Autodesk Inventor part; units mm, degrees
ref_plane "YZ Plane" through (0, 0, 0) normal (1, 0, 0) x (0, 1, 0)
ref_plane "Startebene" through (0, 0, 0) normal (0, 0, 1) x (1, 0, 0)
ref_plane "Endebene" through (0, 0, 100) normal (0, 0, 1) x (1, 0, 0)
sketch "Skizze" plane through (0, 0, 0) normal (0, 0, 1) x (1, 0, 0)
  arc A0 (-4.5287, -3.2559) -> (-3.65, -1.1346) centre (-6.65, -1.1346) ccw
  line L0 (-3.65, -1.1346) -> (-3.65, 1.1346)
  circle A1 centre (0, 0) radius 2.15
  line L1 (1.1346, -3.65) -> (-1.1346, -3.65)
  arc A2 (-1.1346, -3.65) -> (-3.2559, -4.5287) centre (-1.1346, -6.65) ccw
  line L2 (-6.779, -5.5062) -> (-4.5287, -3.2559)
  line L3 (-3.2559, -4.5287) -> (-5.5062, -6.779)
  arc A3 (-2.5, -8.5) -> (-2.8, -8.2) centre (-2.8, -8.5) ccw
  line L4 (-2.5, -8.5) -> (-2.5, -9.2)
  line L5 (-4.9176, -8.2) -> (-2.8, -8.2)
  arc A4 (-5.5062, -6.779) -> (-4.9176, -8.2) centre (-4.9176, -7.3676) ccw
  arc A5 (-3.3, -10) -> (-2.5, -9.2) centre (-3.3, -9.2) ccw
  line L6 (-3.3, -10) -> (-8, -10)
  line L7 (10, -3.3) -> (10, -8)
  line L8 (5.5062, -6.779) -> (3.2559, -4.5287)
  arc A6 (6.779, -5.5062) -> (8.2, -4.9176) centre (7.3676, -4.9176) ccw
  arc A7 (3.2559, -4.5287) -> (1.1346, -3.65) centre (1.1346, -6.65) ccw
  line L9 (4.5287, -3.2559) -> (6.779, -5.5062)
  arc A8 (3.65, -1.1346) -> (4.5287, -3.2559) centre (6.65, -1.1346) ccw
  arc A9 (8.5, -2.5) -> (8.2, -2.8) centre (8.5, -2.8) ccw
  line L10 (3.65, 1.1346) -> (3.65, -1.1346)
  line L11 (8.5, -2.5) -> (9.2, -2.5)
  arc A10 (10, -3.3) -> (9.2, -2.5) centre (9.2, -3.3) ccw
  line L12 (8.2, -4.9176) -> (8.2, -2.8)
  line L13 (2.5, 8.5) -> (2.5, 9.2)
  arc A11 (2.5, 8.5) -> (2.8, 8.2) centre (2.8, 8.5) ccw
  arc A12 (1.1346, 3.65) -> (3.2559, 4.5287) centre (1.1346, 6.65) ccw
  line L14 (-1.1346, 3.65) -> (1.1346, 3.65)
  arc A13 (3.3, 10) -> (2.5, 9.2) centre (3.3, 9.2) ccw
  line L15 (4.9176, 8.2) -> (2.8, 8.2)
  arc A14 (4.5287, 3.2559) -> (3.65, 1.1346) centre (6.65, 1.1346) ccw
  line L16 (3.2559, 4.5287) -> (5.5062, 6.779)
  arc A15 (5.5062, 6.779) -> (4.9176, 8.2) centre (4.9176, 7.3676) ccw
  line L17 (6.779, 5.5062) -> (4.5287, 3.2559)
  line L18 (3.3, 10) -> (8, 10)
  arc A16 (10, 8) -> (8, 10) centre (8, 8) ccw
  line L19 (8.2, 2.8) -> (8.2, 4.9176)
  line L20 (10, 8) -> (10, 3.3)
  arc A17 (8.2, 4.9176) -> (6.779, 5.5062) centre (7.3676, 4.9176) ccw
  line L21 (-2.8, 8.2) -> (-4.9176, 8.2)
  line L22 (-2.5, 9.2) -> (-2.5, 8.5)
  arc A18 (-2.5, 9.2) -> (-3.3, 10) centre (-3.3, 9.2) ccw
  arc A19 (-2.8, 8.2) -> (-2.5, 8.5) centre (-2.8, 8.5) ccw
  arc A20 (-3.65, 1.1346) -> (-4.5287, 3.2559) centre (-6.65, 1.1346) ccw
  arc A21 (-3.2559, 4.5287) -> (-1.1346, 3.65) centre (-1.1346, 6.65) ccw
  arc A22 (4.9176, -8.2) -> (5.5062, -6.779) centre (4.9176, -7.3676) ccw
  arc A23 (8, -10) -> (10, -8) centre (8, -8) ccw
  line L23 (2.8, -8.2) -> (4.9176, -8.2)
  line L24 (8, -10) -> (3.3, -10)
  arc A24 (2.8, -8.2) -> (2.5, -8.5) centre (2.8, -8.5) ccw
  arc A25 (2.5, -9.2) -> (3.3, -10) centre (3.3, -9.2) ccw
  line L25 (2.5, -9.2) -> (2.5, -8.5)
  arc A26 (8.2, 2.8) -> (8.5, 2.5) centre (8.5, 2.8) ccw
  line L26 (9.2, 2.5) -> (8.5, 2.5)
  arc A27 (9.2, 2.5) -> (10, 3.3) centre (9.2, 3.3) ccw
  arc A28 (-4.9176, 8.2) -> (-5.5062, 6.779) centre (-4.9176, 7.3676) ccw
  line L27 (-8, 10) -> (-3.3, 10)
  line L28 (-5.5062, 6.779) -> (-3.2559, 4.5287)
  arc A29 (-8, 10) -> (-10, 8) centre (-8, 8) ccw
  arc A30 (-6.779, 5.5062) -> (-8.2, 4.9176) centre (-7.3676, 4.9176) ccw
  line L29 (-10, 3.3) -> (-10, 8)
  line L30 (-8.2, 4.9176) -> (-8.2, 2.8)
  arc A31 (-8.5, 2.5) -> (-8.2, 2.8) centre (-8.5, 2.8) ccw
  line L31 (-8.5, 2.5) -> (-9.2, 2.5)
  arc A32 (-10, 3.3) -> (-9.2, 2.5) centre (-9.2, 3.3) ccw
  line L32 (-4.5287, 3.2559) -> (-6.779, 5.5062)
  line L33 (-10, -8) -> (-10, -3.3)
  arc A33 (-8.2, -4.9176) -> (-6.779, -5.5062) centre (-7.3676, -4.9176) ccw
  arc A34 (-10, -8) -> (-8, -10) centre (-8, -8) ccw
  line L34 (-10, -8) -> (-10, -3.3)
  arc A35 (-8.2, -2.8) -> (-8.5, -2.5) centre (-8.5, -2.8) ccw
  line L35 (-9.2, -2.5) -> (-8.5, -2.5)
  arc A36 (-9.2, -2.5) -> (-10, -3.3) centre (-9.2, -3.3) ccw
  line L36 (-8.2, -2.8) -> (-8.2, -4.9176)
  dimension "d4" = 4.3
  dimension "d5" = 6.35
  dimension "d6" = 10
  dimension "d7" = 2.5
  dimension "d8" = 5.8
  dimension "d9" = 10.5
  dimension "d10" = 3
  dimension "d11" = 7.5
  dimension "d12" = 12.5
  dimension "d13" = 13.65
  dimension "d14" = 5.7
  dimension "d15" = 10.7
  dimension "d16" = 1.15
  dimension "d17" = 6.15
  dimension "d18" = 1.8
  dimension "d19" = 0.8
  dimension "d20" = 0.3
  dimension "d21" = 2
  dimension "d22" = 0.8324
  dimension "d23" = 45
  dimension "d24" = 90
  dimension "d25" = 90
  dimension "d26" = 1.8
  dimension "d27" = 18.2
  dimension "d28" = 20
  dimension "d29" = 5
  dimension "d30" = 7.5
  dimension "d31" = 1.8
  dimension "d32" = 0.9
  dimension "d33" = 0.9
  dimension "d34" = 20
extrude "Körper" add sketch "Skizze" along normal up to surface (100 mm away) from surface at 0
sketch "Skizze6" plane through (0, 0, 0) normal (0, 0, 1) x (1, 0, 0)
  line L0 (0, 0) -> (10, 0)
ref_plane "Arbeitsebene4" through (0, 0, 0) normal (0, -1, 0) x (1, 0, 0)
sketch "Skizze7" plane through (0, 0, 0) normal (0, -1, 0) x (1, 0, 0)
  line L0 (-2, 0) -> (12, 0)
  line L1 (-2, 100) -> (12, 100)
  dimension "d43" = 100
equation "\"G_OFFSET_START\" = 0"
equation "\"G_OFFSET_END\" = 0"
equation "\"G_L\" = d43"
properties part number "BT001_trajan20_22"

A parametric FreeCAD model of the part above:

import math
import FreeCAD as App
import Part
import Sketcher
from FreeCAD import Vector

doc = App.newDocument("Part")
params = doc.addObject("Spreadsheet::Sheet", "Params")
for row, (alias, value) in enumerate([
    ("sketch1_radius", "3 mm"),
    ("sketch1_radius2", "2 mm"),
    ("sketch1_diameter", "4.3 mm"),
    ("sketch1_radius3", "0.3 mm"),
    ("sketch1_radius4", "0.8 mm"),
    ("pad1_length", "100 mm"),
], start=1):
    params.set(f"A{row}", alias)
    params.set(f"B{row}", "=" + value)
    params.setAlias(f"B{row}", alias)

body = doc.addObject("PartDesign::Body", "Body")

sketch1 = body.newObject("Sketcher::SketchObject", "Sketch")
sketch1.AttachmentSupport = (doc.getObject("XY_Plane"), [""])
sketch1.MapMode = "FlatFace"
sketch1.addGeometry(Part.ArcOfCircle(Part.Circle(Vector(-6.65, -1.1346, 0), Vector(0, 0, 1), 2.999971), math.radians(-45), math.radians(0)), False)
sketch1.addGeometry(Part.LineSegment(Vector(-4.5287, -3.2559, 0), Vector(-6.779, -5.5062, 0)), False)
sketch1.addGeometry(Part.ArcOfCircle(Part.Circle(Vector(-7.3676, -4.9176, 0), Vector(0, 0, 1), 0.8324), math.radians(180), math.radians(315)), False)
sketch1.addGeometry(Part.LineSegment(Vector(-8.2, -4.9176, 0), Vector(-8.2, -2.8, 0)), False)
sketch1.addGeometry(Part.ArcOfCircle(Part.Circle(Vector(-8.5, -2.8, 0), Vector(0, 0, 1), 0.3), math.radians(0), math.radians(90)), False)
sketch1.addGeometry(Part.LineSegment(Vector(-8.5, -2.5, 0), Vector(-9.2, -2.5, 0)), False)
sketch1.addGeometry(Part.ArcOfCircle(Part.Circle(Vector(-9.2, -3.3, 0), Vector(0, 0, 1), 0.8), math.radians(90), math.radians(180)), False)
sketch1.addGeometry(Part.LineSegment(Vector(-10, -3.3, 0), Vector(-10, -8, 0)), False)
sketch1.addGeometry(Part.ArcOfCircle(Part.Circle(Vector(-8, -8, 0), Vector(0, 0, 1), 2), math.radians(180), math.radians(270)), False)
sketch1.addGeometry(Part.LineSegment(Vector(-8, -10, 0), Vector(-3.3, -10, 0)), False)
sketch1.addGeometry(Part.ArcOfCircle(Part.Circle(Vector(-3.3, -9.2, 0), Vector(0, 0, 1), 0.8), math.radians(-90), math.radians(0)), False)
sketch1.addGeometry(Part.LineSegment(Vector(-2.5, -9.2, 0), Vector(-2.5, -8.5, 0)), False)
sketch1.addGeometry(Part.ArcOfCircle(Part.Circle(Vector(-2.8, -8.5, 0), Vector(0, 0, 1), 0.3), math.radians(0), math.radians(90)), False)
sketch1.addGeometry(Part.LineSegment(Vector(-2.8, -8.2, 0), Vector(-4.9176, -8.2, 0)), False)
sketch1.addGeometry(Part.ArcOfCircle(Part.Circle(Vector(-4.9176, -7.3676, 0), Vector(0, 0, 1), 0.832406), math.radians(135), math.radians(270)), False)
sketch1.addGeometry(Part.LineSegment(Vector(-5.5062, -6.779, 0), Vector(-3.2559, -4.5287, 0)), False)
sketch1.addGeometry(Part.ArcOfCircle(Part.Circle(Vector(-1.1346, -6.65, 0), Vector(0, 0, 1), 3), math.radians(90), math.radians(135)), False)
sketch1.addGeometry(Part.LineSegment(Vector(-1.1346, -3.65, 0), Vector(1.1346, -3.65, 0)), False)
sketch1.addGeometry(Part.ArcOfCircle(Part.Circle(Vector(1.1346, -6.65, 0), Vector(0, 0, 1), 2.999971), math.radians(45), math.radians(90)), False)
sketch1.addGeometry(Part.LineSegment(Vector(3.2559, -4.5287, 0), Vector(5.5062, -6.779, 0)), False)
sketch1.addGeometry(Part.ArcOfCircle(Part.Circle(Vector(4.9176, -7.3676, 0), Vector(0, 0, 1), 0.8324), math.radians(-90), math.radians(45)), False)
sketch1.addGeometry(Part.LineSegment(Vector(4.9176, -8.2, 0), Vector(2.8, -8.2, 0)), False)
sketch1.addGeometry(Part.ArcOfCircle(Part.Circle(Vector(2.8, -8.5, 0), Vector(0, 0, 1), 0.3), math.radians(90), math.radians(180)), False)
sketch1.addGeometry(Part.LineSegment(Vector(2.5, -8.5, 0), Vector(2.5, -9.2, 0)), False)
sketch1.addGeometry(Part.ArcOfCircle(Part.Circle(Vector(3.3, -9.2, 0), Vector(0, 0, 1), 0.8), math.radians(180), math.radians(270)), False)
sketch1.addGeometry(Part.LineSegment(Vector(3.3, -10, 0), Vector(8, -10, 0)), False)
sketch1.addGeometry(Part.ArcOfCircle(Part.Circle(Vector(8, -8, 0), Vector(0, 0, 1), 2), math.radians(-90), math.radians(0)), False)
sketch1.addGeometry(Part.LineSegment(Vector(10, -8, 0), Vector(10, -3.3, 0)), False)
sketch1.addGeometry(Part.ArcOfCircle(Part.Circle(Vector(9.2, -3.3, 0), Vector(0, 0, 1), 0.8), math.radians(0), math.radians(90)), False)
sketch1.addGeometry(Part.LineSegment(Vector(9.2, -2.5, 0), Vector(8.5, -2.5, 0)), False)
sketch1.addGeometry(Part.ArcOfCircle(Part.Circle(Vector(8.5, -2.8, 0), Vector(0, 0, 1), 0.3), math.radians(90), math.radians(180)), False)
sketch1.addGeometry(Part.LineSegment(Vector(8.2, -2.8, 0), Vector(8.2, -4.9176, 0)), False)
sketch1.addGeometry(Part.ArcOfCircle(Part.Circle(Vector(7.3676, -4.9176, 0), Vector(0, 0, 1), 0.832406), math.radians(-135), math.radians(0)), False)
sketch1.addGeometry(Part.LineSegment(Vector(6.779, -5.5062, 0), Vector(4.5287, -3.2559, 0)), False)
sketch1.addGeometry(Part.ArcOfCircle(Part.Circle(Vector(6.65, -1.1346, 0), Vector(0, 0, 1), 3), math.radians(180), math.radians(225)), False)
sketch1.addGeometry(Part.LineSegment(Vector(3.65, -1.1346, 0), Vector(3.65, 1.1346, 0)), False)
sketch1.addGeometry(Part.ArcOfCircle(Part.Circle(Vector(6.65, 1.1346, 0), Vector(0, 0, 1), 2.999971), math.radians(135), math.radians(180)), False)
sketch1.addGeometry(Part.LineSegment(Vector(4.5287, 3.2559, 0), Vector(6.779, 5.5062, 0)), False)
sketch1.addGeometry(Part.ArcOfCircle(Part.Circle(Vector(7.3676, 4.9176, 0), Vector(0, 0, 1), 0.8324), math.radians(0), math.radians(135)), False)
sketch1.addGeometry(Part.LineSegment(Vector(8.2, 4.9176, 0), Vector(8.2, 2.8, 0)), False)
sketch1.addGeometry(Part.ArcOfCircle(Part.Circle(Vector(8.5, 2.8, 0), Vector(0, 0, 1), 0.3), math.radians(180), math.radians(270)), False)
sketch1.addGeometry(Part.LineSegment(Vector(8.5, 2.5, 0), Vector(9.2, 2.5, 0)), False)
sketch1.addGeometry(Part.ArcOfCircle(Part.Circle(Vector(9.2, 3.3, 0), Vector(0, 0, 1), 0.8), math.radians(-90), math.radians(0)), False)
sketch1.addGeometry(Part.LineSegment(Vector(10, 3.3, 0), Vector(10, 8, 0)), False)
sketch1.addGeometry(Part.ArcOfCircle(Part.Circle(Vector(8, 8, 0), Vector(0, 0, 1), 2), math.radians(0), math.radians(90)), False)
sketch1.addGeometry(Part.LineSegment(Vector(8, 10, 0), Vector(3.3, 10, 0)), False)
sketch1.addGeometry(Part.ArcOfCircle(Part.Circle(Vector(3.3, 9.2, 0), Vector(0, 0, 1), 0.8), math.radians(90), math.radians(180)), False)
sketch1.addGeometry(Part.LineSegment(Vector(2.5, 9.2, 0), Vector(2.5, 8.5, 0)), False)
sketch1.addGeometry(Part.ArcOfCircle(Part.Circle(Vector(2.8, 8.5, 0), Vector(0, 0, 1), 0.3), math.radians(180), math.radians(270)), False)
sketch1.addGeometry(Part.LineSegment(Vector(2.8, 8.2, 0), Vector(4.9176, 8.2, 0)), False)
sketch1.addGeometry(Part.ArcOfCircle(Part.Circle(Vector(4.9176, 7.3676, 0), Vector(0, 0, 1), 0.832406), math.radians(-45), math.radians(90)), False)
sketch1.addGeometry(Part.LineSegment(Vector(5.5062, 6.779, 0), Vector(3.2559, 4.5287, 0)), False)
sketch1.addGeometry(Part.ArcOfCircle(Part.Circle(Vector(1.1346, 6.65, 0), Vector(0, 0, 1), 3), math.radians(-90), math.radians(-45)), False)
sketch1.addGeometry(Part.LineSegment(Vector(1.1346, 3.65, 0), Vector(-1.1346, 3.65, 0)), False)
sketch1.addGeometry(Part.ArcOfCircle(Part.Circle(Vector(-1.1346, 6.65, 0), Vector(0, 0, 1), 2.999971), math.radians(-135), math.radians(-90)), False)
sketch1.addGeometry(Part.LineSegment(Vector(-3.2559, 4.5287, 0), Vector(-5.5062, 6.779, 0)), False)
sketch1.addGeometry(Part.ArcOfCircle(Part.Circle(Vector(-4.9176, 7.3676, 0), Vector(0, 0, 1), 0.8324), math.radians(90), math.radians(225)), False)
sketch1.addGeometry(Part.LineSegment(Vector(-4.9176, 8.2, 0), Vector(-2.8, 8.2, 0)), False)
sketch1.addGeometry(Part.ArcOfCircle(Part.Circle(Vector(-2.8, 8.5, 0), Vector(0, 0, 1), 0.3), math.radians(-90), math.radians(0)), False)
sketch1.addGeometry(Part.LineSegment(Vector(-2.5, 8.5, 0), Vector(-2.5, 9.2, 0)), False)
sketch1.addGeometry(Part.ArcOfCircle(Part.Circle(Vector(-3.3, 9.2, 0), Vector(0, 0, 1), 0.8), math.radians(0), math.radians(90)), False)
sketch1.addGeometry(Part.LineSegment(Vector(-3.3, 10, 0), Vector(-8, 10, 0)), False)
sketch1.addGeometry(Part.ArcOfCircle(Part.Circle(Vector(-8, 8, 0), Vector(0, 0, 1), 2), math.radians(90), math.radians(180)), False)
sketch1.addGeometry(Part.LineSegment(Vector(-10, 8, 0), Vector(-10, 3.3, 0)), False)
sketch1.addGeometry(Part.ArcOfCircle(Part.Circle(Vector(-9.2, 3.3, 0), Vector(0, 0, 1), 0.8), math.radians(180), math.radians(270)), False)
sketch1.addGeometry(Part.LineSegment(Vector(-9.2, 2.5, 0), Vector(-8.5, 2.5, 0)), False)
sketch1.addGeometry(Part.ArcOfCircle(Part.Circle(Vector(-8.5, 2.8, 0), Vector(0, 0, 1), 0.3), math.radians(-90), math.radians(0)), False)
sketch1.addGeometry(Part.LineSegment(Vector(-8.2, 2.8, 0), Vector(-8.2, 4.9176, 0)), False)
sketch1.addGeometry(Part.ArcOfCircle(Part.Circle(Vector(-7.3676, 4.9176, 0), Vector(0, 0, 1), 0.832406), math.radians(45), math.radians(180)), False)
sketch1.addGeometry(Part.LineSegment(Vector(-6.779, 5.5062, 0), Vector(-4.5287, 3.2559, 0)), False)
sketch1.addGeometry(Part.ArcOfCircle(Part.Circle(Vector(-6.65, 1.1346, 0), Vector(0, 0, 1), 3), math.radians(0), math.radians(45)), False)
sketch1.addGeometry(Part.LineSegment(Vector(-3.65, 1.1346, 0), Vector(-3.65, -1.1346, 0)), False)
sketch1.addGeometry(Part.Circle(Vector(0, 0, 0), Vector(0, 0, 1), 2.15), False)
sketch1.addConstraint(Sketcher.Constraint("Tangent", 0, 1, 1, 1))
sketch1.addConstraint(Sketcher.Constraint("Tangent", 1, 2, 2, 2))
sketch1.addConstraint(Sketcher.Constraint("Tangent", 2, 1, 3, 1))
sketch1.addConstraint(Sketcher.Constraint("Tangent", 3, 2, 4, 1))
sketch1.addConstraint(Sketcher.Constraint("Tangent", 4, 2, 5, 1))
sketch1.addConstraint(Sketcher.Constraint("Tangent", 5, 2, 6, 1))
sketch1.addConstraint(Sketcher.Constraint("Tangent", 6, 2, 7, 1))
sketch1.addConstraint(Sketcher.Constraint("Tangent", 7, 2, 8, 1))
sketch1.addConstraint(Sketcher.Constraint("Tangent", 8, 2, 9, 1))
sketch1.addConstraint(Sketcher.Constraint("Tangent", 9, 2, 10, 1))
sketch1.addConstraint(Sketcher.Constraint("Tangent", 10, 2, 11, 1))
sketch1.addConstraint(Sketcher.Constraint("Tangent", 11, 2, 12, 1))
sketch1.addConstraint(Sketcher.Constraint("Tangent", 12, 2, 13, 1))
sketch1.addConstraint(Sketcher.Constraint("Tangent", 13, 2, 14, 2))
sketch1.addConstraint(Sketcher.Constraint("Tangent", 14, 1, 15, 1))
sketch1.addConstraint(Sketcher.Constraint("Tangent", 15, 2, 16, 2))
sketch1.addConstraint(Sketcher.Constraint("Tangent", 16, 1, 17, 1))
sketch1.addConstraint(Sketcher.Constraint("Tangent", 17, 2, 18, 2))
sketch1.addConstraint(Sketcher.Constraint("Tangent", 18, 1, 19, 1))
sketch1.addConstraint(Sketcher.Constraint("Tangent", 19, 2, 20, 2))
sketch1.addConstraint(Sketcher.Constraint("Tangent", 20, 1, 21, 1))
sketch1.addConstraint(Sketcher.Constraint("Tangent", 21, 2, 22, 1))
sketch1.addConstraint(Sketcher.Constraint("Tangent", 22, 2, 23, 1))
sketch1.addConstraint(Sketcher.Constraint("Tangent", 23, 2, 24, 1))
sketch1.addConstraint(Sketcher.Constraint("Tangent", 24, 2, 25, 1))
sketch1.addConstraint(Sketcher.Constraint("Tangent", 25, 2, 26, 1))
sketch1.addConstraint(Sketcher.Constraint("Tangent", 26, 2, 27, 1))
sketch1.addConstraint(Sketcher.Constraint("Tangent", 27, 2, 28, 1))
sketch1.addConstraint(Sketcher.Constraint("Tangent", 28, 2, 29, 1))
sketch1.addConstraint(Sketcher.Constraint("Tangent", 29, 2, 30, 1))
sketch1.addConstraint(Sketcher.Constraint("Tangent", 30, 2, 31, 1))
sketch1.addConstraint(Sketcher.Constraint("Tangent", 31, 2, 32, 2))
sketch1.addConstraint(Sketcher.Constraint("Tangent", 32, 1, 33, 1))
sketch1.addConstraint(Sketcher.Constraint("Tangent", 33, 2, 34, 2))
sketch1.addConstraint(Sketcher.Constraint("Tangent", 34, 1, 35, 1))
sketch1.addConstraint(Sketcher.Constraint("Tangent", 35, 2, 36, 2))
sketch1.addConstraint(Sketcher.Constraint("Tangent", 36, 1, 37, 1))
sketch1.addConstraint(Sketcher.Constraint("Tangent", 37, 2, 38, 2))
sketch1.addConstraint(Sketcher.Constraint("Tangent", 38, 1, 39, 1))
sketch1.addConstraint(Sketcher.Constraint("Tangent", 39, 2, 40, 1))
sketch1.addConstraint(Sketcher.Constraint("Tangent", 40, 2, 41, 1))
sketch1.addConstraint(Sketcher.Constraint("Tangent", 41, 2, 42, 1))
sketch1.addConstraint(Sketcher.Constraint("Tangent", 42, 2, 43, 1))
sketch1.addConstraint(Sketcher.Constraint("Tangent", 43, 2, 44, 1))
sketch1.addConstraint(Sketcher.Constraint("Tangent", 44, 2, 45, 1))
sketch1.addConstraint(Sketcher.Constraint("Tangent", 45, 2, 46, 1))
sketch1.addConstraint(Sketcher.Constraint("Tangent", 46, 2, 47, 1))
sketch1.addConstraint(Sketcher.Constraint("Tangent", 47, 2, 48, 1))
sketch1.addConstraint(Sketcher.Constraint("Tangent", 48, 2, 49, 1))
sketch1.addConstraint(Sketcher.Constraint("Tangent", 49, 2, 50, 2))
sketch1.addConstraint(Sketcher.Constraint("Tangent", 50, 1, 51, 1))
sketch1.addConstraint(Sketcher.Constraint("Tangent", 51, 2, 52, 2))
sketch1.addConstraint(Sketcher.Constraint("Tangent", 52, 1, 53, 1))
sketch1.addConstraint(Sketcher.Constraint("Tangent", 53, 2, 54, 2))
sketch1.addConstraint(Sketcher.Constraint("Tangent", 54, 1, 55, 1))
sketch1.addConstraint(Sketcher.Constraint("Tangent", 55, 2, 56, 2))
sketch1.addConstraint(Sketcher.Constraint("Tangent", 56, 1, 57, 1))
sketch1.addConstraint(Sketcher.Constraint("Tangent", 57, 2, 58, 1))
sketch1.addConstraint(Sketcher.Constraint("Tangent", 58, 2, 59, 1))
sketch1.addConstraint(Sketcher.Constraint("Tangent", 59, 2, 60, 1))
sketch1.addConstraint(Sketcher.Constraint("Tangent", 60, 2, 61, 1))
sketch1.addConstraint(Sketcher.Constraint("Tangent", 61, 2, 62, 1))
sketch1.addConstraint(Sketcher.Constraint("Tangent", 62, 2, 63, 1))
sketch1.addConstraint(Sketcher.Constraint("Tangent", 63, 2, 64, 1))
sketch1.addConstraint(Sketcher.Constraint("Tangent", 64, 2, 65, 1))
sketch1.addConstraint(Sketcher.Constraint("Tangent", 65, 2, 66, 1))
sketch1.addConstraint(Sketcher.Constraint("Tangent", 66, 2, 67, 1))
sketch1.addConstraint(Sketcher.Constraint("Tangent", 67, 2, 68, 2))
sketch1.addConstraint(Sketcher.Constraint("Tangent", 68, 1, 69, 1))
sketch1.addConstraint(Sketcher.Constraint("Tangent", 69, 2, 70, 2))
sketch1.addConstraint(Sketcher.Constraint("Tangent", 70, 1, 71, 1))
sketch1.addConstraint(Sketcher.Constraint("Tangent", 71, 2, 0, 2))
sketch1.addConstraint(Sketcher.Constraint("Vertical", 3))
sketch1.addConstraint(Sketcher.Constraint("Horizontal", 5))
sketch1.addConstraint(Sketcher.Constraint("Vertical", 7))
sketch1.addConstraint(Sketcher.Constraint("Horizontal", 9))
sketch1.addConstraint(Sketcher.Constraint("Vertical", 11))
sketch1.addConstraint(Sketcher.Constraint("Horizontal", 13))
sketch1.addConstraint(Sketcher.Constraint("Horizontal", 17))
sketch1.addConstraint(Sketcher.Constraint("Horizontal", 21))
sketch1.addConstraint(Sketcher.Constraint("Vertical", 23))
sketch1.addConstraint(Sketcher.Constraint("Horizontal", 25))
sketch1.addConstraint(Sketcher.Constraint("Vertical", 27))
sketch1.addConstraint(Sketcher.Constraint("Horizontal", 29))
sketch1.addConstraint(Sketcher.Constraint("Vertical", 31))
sketch1.addConstraint(Sketcher.Constraint("Vertical", 35))
sketch1.addConstraint(Sketcher.Constraint("Vertical", 39))
sketch1.addConstraint(Sketcher.Constraint("Horizontal", 41))
sketch1.addConstraint(Sketcher.Constraint("Vertical", 43))
sketch1.addConstraint(Sketcher.Constraint("Horizontal", 45))
sketch1.addConstraint(Sketcher.Constraint("Vertical", 47))
sketch1.addConstraint(Sketcher.Constraint("Horizontal", 49))
sketch1.addConstraint(Sketcher.Constraint("Horizontal", 53))
sketch1.addConstraint(Sketcher.Constraint("Horizontal", 57))
sketch1.addConstraint(Sketcher.Constraint("Vertical", 59))
sketch1.addConstraint(Sketcher.Constraint("Horizontal", 61))
sketch1.addConstraint(Sketcher.Constraint("Vertical", 63))
sketch1.addConstraint(Sketcher.Constraint("Horizontal", 65))
sketch1.addConstraint(Sketcher.Constraint("Vertical", 67))
sketch1.addConstraint(Sketcher.Constraint("Vertical", 71))
sketch1.addConstraint(Sketcher.Constraint("Coincident", 72, 3, -1, 1))
sketch1.addConstraint(Sketcher.Constraint("Equal", 6, 10))
sketch1.addConstraint(Sketcher.Constraint("Equal", 4, 12))
sketch1.addConstraint(Sketcher.Constraint("Equal", 2, 14))
sketch1.addConstraint(Sketcher.Constraint("Equal", 0, 16))
sketch1.addConstraint(Sketcher.Constraint("Equal", 16, 18))
sketch1.addConstraint(Sketcher.Constraint("Equal", 14, 20))
sketch1.addConstraint(Sketcher.Constraint("Equal", 12, 22))
sketch1.addConstraint(Sketcher.Constraint("Equal", 10, 24))
sketch1.addConstraint(Sketcher.Constraint("Equal", 8, 26))
sketch1.addConstraint(Sketcher.Constraint("Equal", 24, 28))
sketch1.addConstraint(Sketcher.Constraint("Equal", 22, 30))
sketch1.addConstraint(Sketcher.Constraint("Equal", 20, 32))
sketch1.addConstraint(Sketcher.Constraint("Equal", 18, 34))
sketch1.addConstraint(Sketcher.Constraint("Equal", 34, 36))
sketch1.addConstraint(Sketcher.Constraint("Equal", 32, 38))
sketch1.addConstraint(Sketcher.Constraint("Equal", 30, 40))
sketch1.addConstraint(Sketcher.Constraint("Equal", 28, 42))
sketch1.addConstraint(Sketcher.Constraint("Equal", 26, 44))
sketch1.addConstraint(Sketcher.Constraint("Equal", 42, 46))
sketch1.addConstraint(Sketcher.Constraint("Equal", 40, 48))
sketch1.addConstraint(Sketcher.Constraint("Equal", 38, 50))
sketch1.addConstraint(Sketcher.Constraint("Equal", 36, 52))
sketch1.addConstraint(Sketcher.Constraint("Equal", 52, 54))
sketch1.addConstraint(Sketcher.Constraint("Equal", 50, 56))
sketch1.addConstraint(Sketcher.Constraint("Equal", 48, 58))
sketch1.addConstraint(Sketcher.Constraint("Equal", 46, 60))
sketch1.addConstraint(Sketcher.Constraint("Equal", 44, 62))
sketch1.addConstraint(Sketcher.Constraint("Equal", 60, 64))
sketch1.addConstraint(Sketcher.Constraint("Equal", 58, 66))
sketch1.addConstraint(Sketcher.Constraint("Equal", 56, 68))
sketch1.addConstraint(Sketcher.Constraint("Equal", 54, 70))
sketch1.addConstraint(Sketcher.Constraint("Symmetric", 0, 3, 36, 3, -1, 1))
sketch1.addConstraint(Sketcher.Constraint("Symmetric", 2, 3, 38, 3, -1, 1))
sketch1.addConstraint(Sketcher.Constraint("Symmetric", 6, 3, 42, 3, -1, 1))
sketch1.addConstraint(Sketcher.Constraint("Symmetric", 10, 3, 46, 3, -1, 1))
sketch1.addConstraint(Sketcher.Constraint("Symmetric", 14, 3, 50, 3, -1, 1))
sketch1.addConstraint(Sketcher.Constraint("Symmetric", 16, 3, 52, 3, -1, 1))
sketch1.addConstraint(Sketcher.Constraint("Symmetric", 20, 3, 56, 3, -1, 1))
sketch1.addConstraint(Sketcher.Constraint("Symmetric", 24, 3, 60, 3, -1, 1))
sketch1.addConstraint(Sketcher.Constraint("Symmetric", 28, 3, 64, 3, -1, 1))
sketch1.addConstraint(Sketcher.Constraint("Symmetric", 32, 3, 68, 3, -1, 1))
sketch1.addConstraint(Sketcher.Constraint("Symmetric", 14, 3, 20, 3, -2))
sketch1.addConstraint(Sketcher.Constraint("Symmetric", 10, 3, 24, 3, -2))
sketch1.addConstraint(Sketcher.Constraint("Symmetric", 6, 3, 28, 3, -2))
sketch1.addConstraint(Sketcher.Constraint("Symmetric", 2, 3, 32, 3, -2))
sketch1.addConstraint(Sketcher.Constraint("Parallel", 1, 15))
sketch1.addConstraint(Sketcher.Constraint("Perpendicular", 15, 19))
sketch1.addConstraint(Sketcher.Constraint("Parallel", 19, 33))
sketch1.addConstraint(Sketcher.Constraint("Perpendicular", 51, 55))
sketch1.addConstraint(Sketcher.Constraint("Parallel", 55, 69))
sketch1.addConstraint(Sketcher.Constraint("Horizontal", 0, 3, 34, 3))
sketch1.addConstraint(Sketcher.Constraint("Equal", 57, 3))
sketch1.addConstraint(Sketcher.Constraint("Equal", 61, 7))
sketch1.addConstraint(Sketcher.Constraint("Equal", 65, 11))
sketch1.addConstraint(Sketcher.Constraint("Equal", 53, 35))
sketch1.addConstraint(Sketcher.Constraint("Equal", 1, 15))
sketch1.addConstraint(Sketcher.Constraint("Radius", 0, 3.0))
sketch1.addConstraint(Sketcher.Constraint("Radius", 8, 2.0))
sketch1.addConstraint(Sketcher.Constraint("Diameter", 72, 4.3))
sketch1.addConstraint(Sketcher.Constraint("Radius", 4, 0.3))
sketch1.addConstraint(Sketcher.Constraint("Radius", 6, 0.8))
sketch1.addConstraint(Sketcher.Constraint("DistanceX", 6, 2, -1, 1, 10.0))
sketch1.addConstraint(Sketcher.Constraint("DistanceY", 4, 2, -1, 1, 2.5))
sketch1.addConstraint(Sketcher.Constraint("Radius", 2, 0.8324))
sketch1.addConstraint(Sketcher.Constraint("DistanceX", 5, 2, 5, 1, 0.7))
sketch1.addConstraint(Sketcher.Constraint("DistanceX", 0, 3, -1, 1, 6.65))
sketch1.addConstraint(Sketcher.Constraint("DistanceX", 13, 2, 13, 1, 2.1176))
sketch1.setExpression("Constraints[157]", "Params.sketch1_radius")
sketch1.setExpression("Constraints[158]", "Params.sketch1_radius2")
sketch1.setExpression("Constraints[159]", "Params.sketch1_diameter")
sketch1.setExpression("Constraints[160]", "Params.sketch1_radius3")
sketch1.setExpression("Constraints[161]", "Params.sketch1_radius4")
pad1 = body.newObject("PartDesign::Pad", "Pad")
pad1.Profile = sketch1
pad1.setExpression("Length", "Params.pad1_length")

doc.recompute()
